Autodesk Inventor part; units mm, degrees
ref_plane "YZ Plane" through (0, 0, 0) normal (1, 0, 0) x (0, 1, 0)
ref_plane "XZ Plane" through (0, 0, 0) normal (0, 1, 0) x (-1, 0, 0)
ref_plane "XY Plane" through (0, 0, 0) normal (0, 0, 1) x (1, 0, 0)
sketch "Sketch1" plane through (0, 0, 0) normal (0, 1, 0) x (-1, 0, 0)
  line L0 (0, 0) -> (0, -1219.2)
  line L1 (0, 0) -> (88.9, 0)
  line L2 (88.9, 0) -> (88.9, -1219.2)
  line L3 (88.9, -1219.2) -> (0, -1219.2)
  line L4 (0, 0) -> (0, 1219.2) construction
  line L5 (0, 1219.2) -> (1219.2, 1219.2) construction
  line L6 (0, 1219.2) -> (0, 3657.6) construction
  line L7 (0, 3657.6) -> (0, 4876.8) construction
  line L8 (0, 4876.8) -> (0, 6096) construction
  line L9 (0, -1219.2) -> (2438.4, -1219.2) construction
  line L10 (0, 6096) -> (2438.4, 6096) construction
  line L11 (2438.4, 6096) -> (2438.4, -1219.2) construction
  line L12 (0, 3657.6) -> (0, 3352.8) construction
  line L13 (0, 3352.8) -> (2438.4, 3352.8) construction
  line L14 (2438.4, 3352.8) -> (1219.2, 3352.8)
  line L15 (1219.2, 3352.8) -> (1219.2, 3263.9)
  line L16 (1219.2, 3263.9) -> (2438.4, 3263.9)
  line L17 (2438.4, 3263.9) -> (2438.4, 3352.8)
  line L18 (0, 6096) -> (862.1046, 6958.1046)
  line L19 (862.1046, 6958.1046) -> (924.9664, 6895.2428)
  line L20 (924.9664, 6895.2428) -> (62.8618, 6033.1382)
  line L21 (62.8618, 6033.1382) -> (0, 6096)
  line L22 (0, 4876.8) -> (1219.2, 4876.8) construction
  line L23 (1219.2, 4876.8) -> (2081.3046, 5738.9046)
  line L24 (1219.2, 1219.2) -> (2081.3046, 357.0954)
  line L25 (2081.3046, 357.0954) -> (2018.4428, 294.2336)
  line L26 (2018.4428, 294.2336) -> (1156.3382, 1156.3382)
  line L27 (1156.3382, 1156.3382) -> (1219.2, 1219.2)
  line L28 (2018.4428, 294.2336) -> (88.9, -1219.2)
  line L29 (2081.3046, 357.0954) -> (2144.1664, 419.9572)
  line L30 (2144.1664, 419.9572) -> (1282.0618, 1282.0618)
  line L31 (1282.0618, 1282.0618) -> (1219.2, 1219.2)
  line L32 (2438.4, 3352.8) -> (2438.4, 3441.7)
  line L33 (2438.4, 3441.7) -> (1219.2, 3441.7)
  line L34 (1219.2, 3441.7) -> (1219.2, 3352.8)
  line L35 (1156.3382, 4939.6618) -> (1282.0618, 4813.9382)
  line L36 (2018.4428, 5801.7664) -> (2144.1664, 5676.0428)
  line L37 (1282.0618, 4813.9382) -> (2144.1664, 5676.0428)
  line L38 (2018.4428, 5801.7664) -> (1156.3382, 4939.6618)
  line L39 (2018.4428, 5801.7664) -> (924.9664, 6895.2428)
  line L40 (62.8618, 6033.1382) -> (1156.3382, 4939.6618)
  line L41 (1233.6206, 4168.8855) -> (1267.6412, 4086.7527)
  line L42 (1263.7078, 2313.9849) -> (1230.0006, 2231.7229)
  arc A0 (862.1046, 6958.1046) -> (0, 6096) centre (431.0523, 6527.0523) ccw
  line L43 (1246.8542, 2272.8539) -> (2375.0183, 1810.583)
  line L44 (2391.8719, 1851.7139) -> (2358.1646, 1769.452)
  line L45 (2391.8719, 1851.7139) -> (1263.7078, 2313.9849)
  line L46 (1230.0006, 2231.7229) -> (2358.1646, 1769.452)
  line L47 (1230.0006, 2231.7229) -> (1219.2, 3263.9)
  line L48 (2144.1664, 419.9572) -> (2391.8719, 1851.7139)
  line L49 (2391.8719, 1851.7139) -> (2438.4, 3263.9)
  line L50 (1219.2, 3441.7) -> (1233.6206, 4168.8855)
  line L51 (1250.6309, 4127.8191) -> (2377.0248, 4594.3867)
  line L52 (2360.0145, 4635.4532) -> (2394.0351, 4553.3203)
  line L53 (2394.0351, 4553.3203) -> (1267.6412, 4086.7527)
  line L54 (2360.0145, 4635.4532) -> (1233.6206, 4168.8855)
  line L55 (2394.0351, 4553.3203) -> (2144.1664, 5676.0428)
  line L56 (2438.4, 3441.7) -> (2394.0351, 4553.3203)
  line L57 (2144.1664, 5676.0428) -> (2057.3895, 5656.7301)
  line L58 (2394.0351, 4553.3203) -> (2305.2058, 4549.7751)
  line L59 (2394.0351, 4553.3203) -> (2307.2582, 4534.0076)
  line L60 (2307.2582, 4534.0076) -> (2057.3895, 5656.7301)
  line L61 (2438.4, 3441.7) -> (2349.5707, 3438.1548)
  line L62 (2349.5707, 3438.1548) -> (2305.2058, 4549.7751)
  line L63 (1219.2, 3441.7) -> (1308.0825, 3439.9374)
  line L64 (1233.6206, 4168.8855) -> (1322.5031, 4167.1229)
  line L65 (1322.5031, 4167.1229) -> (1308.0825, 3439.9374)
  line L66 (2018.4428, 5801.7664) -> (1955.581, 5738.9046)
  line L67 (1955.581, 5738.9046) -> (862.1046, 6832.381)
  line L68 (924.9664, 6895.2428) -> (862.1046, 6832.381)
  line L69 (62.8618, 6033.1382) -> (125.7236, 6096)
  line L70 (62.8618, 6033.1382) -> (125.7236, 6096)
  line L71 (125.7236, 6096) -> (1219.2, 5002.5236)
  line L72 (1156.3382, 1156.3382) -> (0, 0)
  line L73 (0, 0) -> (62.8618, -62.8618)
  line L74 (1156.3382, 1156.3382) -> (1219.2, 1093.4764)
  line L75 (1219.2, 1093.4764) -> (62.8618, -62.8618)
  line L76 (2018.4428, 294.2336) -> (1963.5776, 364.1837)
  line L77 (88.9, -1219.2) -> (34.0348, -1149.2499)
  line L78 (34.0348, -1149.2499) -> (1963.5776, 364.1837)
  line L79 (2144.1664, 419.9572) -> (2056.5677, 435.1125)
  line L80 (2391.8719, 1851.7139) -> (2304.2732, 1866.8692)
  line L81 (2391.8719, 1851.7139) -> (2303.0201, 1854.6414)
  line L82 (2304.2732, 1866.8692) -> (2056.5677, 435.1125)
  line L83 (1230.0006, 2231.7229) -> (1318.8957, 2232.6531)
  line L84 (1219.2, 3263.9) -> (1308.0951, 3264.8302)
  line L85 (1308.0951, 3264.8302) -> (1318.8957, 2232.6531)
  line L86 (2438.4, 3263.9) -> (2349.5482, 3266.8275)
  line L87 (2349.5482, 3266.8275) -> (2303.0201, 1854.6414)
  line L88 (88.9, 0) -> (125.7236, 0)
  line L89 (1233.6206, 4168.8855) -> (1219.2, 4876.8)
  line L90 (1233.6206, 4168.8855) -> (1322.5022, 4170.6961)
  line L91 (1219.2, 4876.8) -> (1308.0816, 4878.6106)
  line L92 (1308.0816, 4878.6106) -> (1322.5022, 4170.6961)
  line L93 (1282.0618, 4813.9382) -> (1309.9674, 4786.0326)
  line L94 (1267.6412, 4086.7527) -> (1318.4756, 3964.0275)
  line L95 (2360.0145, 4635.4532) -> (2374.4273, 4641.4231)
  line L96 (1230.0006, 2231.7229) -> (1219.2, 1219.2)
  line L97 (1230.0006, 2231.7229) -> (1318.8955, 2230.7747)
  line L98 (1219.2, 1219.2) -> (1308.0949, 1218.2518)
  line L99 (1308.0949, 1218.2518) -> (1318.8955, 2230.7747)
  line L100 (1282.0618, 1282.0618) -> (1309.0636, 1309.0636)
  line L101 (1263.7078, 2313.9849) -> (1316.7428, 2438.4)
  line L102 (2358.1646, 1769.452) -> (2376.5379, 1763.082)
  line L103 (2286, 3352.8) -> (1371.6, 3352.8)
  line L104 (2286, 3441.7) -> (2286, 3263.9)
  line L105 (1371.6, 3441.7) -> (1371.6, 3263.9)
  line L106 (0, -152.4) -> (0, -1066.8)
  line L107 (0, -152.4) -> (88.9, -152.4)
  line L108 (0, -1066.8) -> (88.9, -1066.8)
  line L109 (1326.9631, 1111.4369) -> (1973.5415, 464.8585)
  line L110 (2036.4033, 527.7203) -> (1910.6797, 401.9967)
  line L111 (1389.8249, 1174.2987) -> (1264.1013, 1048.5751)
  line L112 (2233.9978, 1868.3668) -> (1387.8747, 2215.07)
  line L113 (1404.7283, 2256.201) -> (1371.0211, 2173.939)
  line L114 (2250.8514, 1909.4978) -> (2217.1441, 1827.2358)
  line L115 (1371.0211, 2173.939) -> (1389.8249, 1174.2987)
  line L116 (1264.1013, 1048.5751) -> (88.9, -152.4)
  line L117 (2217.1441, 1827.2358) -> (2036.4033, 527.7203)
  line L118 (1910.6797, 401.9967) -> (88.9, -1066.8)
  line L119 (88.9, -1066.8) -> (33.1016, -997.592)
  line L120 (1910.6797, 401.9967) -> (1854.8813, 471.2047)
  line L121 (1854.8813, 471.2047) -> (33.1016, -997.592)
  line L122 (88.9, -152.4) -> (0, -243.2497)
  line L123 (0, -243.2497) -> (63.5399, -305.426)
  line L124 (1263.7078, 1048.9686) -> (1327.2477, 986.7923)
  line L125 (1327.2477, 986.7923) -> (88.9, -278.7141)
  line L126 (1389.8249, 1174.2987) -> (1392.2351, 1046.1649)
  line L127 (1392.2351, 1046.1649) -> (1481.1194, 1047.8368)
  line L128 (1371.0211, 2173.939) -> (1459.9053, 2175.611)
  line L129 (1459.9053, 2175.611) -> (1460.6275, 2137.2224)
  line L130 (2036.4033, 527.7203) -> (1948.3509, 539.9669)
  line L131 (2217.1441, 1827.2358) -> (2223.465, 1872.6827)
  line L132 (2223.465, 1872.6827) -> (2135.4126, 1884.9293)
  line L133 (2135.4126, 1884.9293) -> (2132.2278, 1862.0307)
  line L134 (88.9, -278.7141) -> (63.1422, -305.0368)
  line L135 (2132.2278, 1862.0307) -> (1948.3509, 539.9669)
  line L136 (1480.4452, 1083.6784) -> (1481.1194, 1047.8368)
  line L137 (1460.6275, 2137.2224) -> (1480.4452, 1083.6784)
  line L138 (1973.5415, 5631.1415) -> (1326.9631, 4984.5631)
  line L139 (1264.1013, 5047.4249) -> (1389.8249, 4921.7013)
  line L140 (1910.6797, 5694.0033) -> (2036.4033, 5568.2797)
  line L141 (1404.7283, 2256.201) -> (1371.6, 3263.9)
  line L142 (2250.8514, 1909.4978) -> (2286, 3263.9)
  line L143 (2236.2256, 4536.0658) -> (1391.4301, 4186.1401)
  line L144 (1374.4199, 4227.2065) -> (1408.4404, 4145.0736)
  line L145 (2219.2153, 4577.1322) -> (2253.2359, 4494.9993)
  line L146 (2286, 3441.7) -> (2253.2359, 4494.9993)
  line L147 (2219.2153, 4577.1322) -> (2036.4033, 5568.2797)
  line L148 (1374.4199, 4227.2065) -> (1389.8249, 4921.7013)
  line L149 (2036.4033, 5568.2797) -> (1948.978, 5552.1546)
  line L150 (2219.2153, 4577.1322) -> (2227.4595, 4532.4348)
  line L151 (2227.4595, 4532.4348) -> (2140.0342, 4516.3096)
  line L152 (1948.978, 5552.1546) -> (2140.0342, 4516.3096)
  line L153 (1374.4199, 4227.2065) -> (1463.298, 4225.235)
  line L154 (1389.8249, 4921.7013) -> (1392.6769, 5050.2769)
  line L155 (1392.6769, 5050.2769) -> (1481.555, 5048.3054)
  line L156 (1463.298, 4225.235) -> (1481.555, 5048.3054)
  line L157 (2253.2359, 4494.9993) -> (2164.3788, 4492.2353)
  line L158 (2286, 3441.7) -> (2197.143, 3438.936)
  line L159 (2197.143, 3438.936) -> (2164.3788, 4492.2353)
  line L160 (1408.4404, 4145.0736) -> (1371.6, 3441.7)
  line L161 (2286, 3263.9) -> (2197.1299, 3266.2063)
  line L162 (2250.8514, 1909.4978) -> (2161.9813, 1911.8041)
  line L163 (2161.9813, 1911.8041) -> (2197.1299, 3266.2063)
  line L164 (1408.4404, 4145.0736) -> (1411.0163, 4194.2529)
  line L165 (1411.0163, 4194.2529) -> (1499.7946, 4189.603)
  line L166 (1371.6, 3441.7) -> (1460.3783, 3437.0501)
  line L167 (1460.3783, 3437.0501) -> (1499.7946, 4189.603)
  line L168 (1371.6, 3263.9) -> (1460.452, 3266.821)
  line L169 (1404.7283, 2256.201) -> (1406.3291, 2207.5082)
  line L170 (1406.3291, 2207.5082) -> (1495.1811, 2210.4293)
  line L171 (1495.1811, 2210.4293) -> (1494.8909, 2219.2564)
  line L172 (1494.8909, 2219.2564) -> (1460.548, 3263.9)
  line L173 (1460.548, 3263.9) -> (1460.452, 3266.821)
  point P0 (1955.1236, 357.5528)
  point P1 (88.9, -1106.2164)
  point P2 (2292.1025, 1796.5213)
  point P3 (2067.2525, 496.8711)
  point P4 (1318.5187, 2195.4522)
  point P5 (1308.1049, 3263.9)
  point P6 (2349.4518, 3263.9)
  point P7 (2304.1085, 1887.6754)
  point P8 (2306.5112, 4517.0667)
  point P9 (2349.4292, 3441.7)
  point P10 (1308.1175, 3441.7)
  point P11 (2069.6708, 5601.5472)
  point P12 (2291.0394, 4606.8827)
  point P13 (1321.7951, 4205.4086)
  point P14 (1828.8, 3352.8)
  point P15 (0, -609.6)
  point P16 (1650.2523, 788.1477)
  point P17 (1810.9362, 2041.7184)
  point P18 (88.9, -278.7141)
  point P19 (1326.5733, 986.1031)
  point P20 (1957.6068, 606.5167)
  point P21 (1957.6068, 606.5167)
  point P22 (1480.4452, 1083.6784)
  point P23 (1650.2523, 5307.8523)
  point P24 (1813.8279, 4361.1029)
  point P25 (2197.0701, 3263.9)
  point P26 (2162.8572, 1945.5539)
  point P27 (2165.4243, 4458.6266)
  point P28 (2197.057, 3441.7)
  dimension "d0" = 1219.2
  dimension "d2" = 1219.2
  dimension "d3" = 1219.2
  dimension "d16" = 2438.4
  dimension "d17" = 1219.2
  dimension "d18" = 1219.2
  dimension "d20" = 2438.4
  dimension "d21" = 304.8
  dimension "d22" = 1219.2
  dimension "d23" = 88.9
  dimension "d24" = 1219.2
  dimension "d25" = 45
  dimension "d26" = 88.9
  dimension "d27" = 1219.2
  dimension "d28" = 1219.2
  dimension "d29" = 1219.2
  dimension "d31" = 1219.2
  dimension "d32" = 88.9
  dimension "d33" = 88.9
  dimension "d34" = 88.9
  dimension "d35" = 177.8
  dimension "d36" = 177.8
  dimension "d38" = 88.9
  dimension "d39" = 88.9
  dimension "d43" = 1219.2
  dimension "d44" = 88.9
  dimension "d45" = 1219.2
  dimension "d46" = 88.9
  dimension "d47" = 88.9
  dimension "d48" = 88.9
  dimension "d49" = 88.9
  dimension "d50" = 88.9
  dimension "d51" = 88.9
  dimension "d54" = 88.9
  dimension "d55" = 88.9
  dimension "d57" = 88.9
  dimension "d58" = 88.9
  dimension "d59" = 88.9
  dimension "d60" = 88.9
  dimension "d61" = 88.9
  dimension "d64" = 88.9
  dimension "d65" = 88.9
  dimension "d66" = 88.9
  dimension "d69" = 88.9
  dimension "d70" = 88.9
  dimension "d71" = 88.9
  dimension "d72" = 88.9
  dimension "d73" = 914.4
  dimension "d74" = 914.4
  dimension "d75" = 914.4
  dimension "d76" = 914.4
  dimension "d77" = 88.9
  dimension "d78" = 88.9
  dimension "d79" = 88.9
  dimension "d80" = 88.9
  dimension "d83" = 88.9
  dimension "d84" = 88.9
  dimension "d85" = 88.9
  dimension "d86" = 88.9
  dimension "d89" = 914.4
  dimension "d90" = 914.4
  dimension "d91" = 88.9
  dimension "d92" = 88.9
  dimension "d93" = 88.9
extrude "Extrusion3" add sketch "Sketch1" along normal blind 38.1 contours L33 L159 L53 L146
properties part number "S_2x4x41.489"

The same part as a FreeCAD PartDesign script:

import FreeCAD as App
import Part
import Sketcher
Q = App.Units.Quantity

doc = App.newDocument("Part")
params = doc.addObject("Spreadsheet::Sheet", "Params")
for row, (alias, value) in enumerate([
    ("sketch1_length", "3.742 in"),
    ("pad1_length", "1.5 in"),
], start=1):
    params.set(f"A{row}", alias)
    params.set(f"B{row}", "=" + value)
    params.setAlias(f"B{row}", alias)

body = doc.addObject("PartDesign::Body", "Body")

# Sketch on XZ plane
sketch1 = body.newObject("Sketcher::SketchObject", "Sketch")
sketch1.AttachmentSupport = (doc.getObject("XZ_Plane"), [""])
sketch1.MapMode = "FlatFace"
sketch1.addGeometry(Part.LineSegment(App.Vector(-2197, 3442, 0), App.Vector(-2286, 3442, 0)), False)
sketch1.addGeometry(Part.LineSegment(App.Vector(-2286, 3442, 0), App.Vector(-2253, 4495, 0)), False)
sketch1.addGeometry(Part.LineSegment(App.Vector(-2253, 4495, 0), App.Vector(-2165, 4459, 0)), False)
sketch1.addGeometry(Part.LineSegment(App.Vector(-2165, 4459, 0), App.Vector(-2197, 3442, 0)), False)
sketch1.addConstraint(Sketcher.Constraint("Coincident", 0, 2, 1, 1))
sketch1.addConstraint(Sketcher.Constraint("Coincident", 1, 2, 2, 1))
sketch1.addConstraint(Sketcher.Constraint("Coincident", 2, 2, 3, 1))
sketch1.addConstraint(Sketcher.Constraint("Coincident", 3, 2, 0, 1))
sketch1.addConstraint(Sketcher.Constraint("Horizontal", 0))
sketch1.addConstraint(Sketcher.Constraint("Parallel", 1, 3))
sketch1.addConstraint(Sketcher.Constraint("DistanceX", 0, 2, -1, 1, Q("90 in")))
sketch1.addConstraint(Sketcher.Constraint("DistanceY", -1, 1, 0, 2, Q("135.5 in")))
sketch1.addConstraint(Sketcher.Constraint("Angle", 2, Q("-22.5 deg")))
sketch1.addConstraint(Sketcher.Constraint("Distance", 2, Q("3.742 in")))
sketch1.addConstraint(Sketcher.Constraint("DistanceX", 0, 2, 0, 1, Q("3.5017 in")))
sketch1.addConstraint(Sketcher.Constraint("Distance", 1, Q("1053.8088 mm")))
sketch1.setExpression("Constraints[9]", "Params.sketch1_length")
pad1 = body.newObject("PartDesign::Pad", "Pad")
pad1.Profile = sketch1
pad1.setExpression("Length", "Params.pad1_length")
pad1.Reversed = True

doc.recompute()
